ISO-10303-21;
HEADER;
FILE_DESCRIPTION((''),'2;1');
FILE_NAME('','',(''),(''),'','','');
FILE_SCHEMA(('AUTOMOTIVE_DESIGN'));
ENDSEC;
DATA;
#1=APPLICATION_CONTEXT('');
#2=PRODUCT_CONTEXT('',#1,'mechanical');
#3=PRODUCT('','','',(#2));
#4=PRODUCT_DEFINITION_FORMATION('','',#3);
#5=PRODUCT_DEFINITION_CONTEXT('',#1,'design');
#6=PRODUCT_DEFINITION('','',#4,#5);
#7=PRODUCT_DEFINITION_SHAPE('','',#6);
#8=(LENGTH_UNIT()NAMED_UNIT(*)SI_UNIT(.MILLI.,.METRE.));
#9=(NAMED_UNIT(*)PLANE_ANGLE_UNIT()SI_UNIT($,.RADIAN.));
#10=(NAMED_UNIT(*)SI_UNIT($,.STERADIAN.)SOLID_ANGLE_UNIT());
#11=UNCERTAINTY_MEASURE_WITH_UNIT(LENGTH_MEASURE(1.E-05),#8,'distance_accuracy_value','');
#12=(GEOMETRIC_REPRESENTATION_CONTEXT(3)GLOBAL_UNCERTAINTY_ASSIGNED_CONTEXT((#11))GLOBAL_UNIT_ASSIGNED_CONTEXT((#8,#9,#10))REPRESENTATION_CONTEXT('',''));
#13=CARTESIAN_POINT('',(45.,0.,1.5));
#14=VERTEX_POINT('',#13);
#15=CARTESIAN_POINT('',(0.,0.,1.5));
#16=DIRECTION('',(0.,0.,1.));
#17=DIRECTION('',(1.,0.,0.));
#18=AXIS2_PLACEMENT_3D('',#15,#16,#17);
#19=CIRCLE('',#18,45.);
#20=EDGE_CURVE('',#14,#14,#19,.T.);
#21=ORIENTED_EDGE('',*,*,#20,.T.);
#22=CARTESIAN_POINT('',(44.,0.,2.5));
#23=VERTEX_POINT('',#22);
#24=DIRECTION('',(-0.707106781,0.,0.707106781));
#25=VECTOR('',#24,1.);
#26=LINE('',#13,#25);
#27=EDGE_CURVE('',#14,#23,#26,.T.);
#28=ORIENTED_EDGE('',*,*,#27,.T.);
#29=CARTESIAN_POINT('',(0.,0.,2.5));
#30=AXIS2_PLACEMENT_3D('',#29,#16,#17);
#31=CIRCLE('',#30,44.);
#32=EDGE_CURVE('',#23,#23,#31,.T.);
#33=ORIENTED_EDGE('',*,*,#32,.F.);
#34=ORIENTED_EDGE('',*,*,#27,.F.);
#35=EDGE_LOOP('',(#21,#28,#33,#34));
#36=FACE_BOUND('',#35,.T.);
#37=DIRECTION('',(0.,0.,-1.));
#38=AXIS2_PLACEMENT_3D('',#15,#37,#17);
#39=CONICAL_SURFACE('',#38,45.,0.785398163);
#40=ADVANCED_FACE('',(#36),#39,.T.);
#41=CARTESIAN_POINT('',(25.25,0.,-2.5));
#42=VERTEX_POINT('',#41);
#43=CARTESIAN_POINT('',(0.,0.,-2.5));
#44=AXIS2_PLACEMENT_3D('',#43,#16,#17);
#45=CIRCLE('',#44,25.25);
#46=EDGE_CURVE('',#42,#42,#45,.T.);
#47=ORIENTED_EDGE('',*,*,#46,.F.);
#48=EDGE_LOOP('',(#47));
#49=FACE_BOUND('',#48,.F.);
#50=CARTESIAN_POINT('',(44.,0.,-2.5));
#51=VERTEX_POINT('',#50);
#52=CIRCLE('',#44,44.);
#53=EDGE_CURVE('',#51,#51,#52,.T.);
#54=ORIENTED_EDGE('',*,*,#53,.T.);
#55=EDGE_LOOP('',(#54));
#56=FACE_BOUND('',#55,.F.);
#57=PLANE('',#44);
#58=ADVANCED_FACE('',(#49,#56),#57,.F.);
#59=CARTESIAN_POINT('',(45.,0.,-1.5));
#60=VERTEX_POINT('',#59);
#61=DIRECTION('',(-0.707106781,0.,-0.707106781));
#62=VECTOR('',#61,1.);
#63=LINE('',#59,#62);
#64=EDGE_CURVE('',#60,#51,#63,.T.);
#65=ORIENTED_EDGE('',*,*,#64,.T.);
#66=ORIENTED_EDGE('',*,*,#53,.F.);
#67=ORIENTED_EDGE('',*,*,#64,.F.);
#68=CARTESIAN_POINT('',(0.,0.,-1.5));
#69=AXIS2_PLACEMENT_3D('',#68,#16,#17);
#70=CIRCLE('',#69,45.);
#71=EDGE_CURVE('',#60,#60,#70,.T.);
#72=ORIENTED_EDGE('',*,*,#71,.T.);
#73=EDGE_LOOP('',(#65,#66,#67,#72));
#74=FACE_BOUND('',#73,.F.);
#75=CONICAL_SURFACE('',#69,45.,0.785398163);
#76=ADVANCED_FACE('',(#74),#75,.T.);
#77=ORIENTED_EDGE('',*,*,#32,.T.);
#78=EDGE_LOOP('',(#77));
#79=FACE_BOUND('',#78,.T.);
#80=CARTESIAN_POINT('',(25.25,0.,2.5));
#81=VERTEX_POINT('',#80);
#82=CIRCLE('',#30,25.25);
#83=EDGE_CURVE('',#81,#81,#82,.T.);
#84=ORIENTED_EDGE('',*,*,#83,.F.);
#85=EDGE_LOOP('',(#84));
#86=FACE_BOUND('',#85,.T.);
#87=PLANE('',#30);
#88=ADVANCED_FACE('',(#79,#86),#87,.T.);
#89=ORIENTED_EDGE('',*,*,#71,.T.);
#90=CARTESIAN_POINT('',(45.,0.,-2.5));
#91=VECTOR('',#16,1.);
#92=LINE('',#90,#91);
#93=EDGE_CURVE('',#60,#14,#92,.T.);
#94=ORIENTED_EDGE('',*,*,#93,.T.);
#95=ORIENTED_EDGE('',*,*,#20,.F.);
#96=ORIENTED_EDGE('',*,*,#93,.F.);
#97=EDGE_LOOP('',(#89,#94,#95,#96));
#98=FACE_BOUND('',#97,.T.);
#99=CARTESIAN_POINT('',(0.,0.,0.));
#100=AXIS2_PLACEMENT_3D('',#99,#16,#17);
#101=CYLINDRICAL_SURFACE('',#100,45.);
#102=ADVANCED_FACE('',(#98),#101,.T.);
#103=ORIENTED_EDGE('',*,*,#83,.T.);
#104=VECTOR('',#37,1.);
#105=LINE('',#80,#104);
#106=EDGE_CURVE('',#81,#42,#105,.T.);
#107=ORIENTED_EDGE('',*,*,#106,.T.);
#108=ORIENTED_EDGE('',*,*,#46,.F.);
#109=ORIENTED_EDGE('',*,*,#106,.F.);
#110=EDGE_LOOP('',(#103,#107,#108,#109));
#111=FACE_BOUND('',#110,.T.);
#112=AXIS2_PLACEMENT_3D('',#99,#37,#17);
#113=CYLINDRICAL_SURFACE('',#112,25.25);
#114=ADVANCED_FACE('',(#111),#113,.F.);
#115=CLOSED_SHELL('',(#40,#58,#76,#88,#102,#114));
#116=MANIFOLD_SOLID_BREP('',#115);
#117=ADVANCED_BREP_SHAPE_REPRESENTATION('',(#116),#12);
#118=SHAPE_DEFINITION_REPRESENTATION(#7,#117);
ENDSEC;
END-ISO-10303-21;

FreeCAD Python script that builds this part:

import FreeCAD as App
import Part
import Sketcher
from FreeCAD import Vector
Q = App.Units.Quantity


def edges_at(feature, points):
    """Names of the edges that pass closest to the given points."""
    edges = feature.Shape.Edges
    near = lambda p: min(range(len(edges)), key=lambda i: edges[i].distToShape(Part.Vertex(*p))[0])
    return sorted({f"Edge{near(p) + 1}" for p in points})

doc = App.newDocument("Part")
body = doc.addObject("PartDesign::Body", "Body")

sketch1 = body.newObject("Sketcher::SketchObject", "Sketch")
sketch1.AttachmentSupport = (doc.getObject("XY_Plane"), [""])
sketch1.MapMode = "FlatFace"
sketch1.addGeometry(Part.Circle(Vector(0, 0, 0), Vector(0, 0, 1), 45), False)
sketch1.addGeometry(Part.Circle(Vector(0, 0, 0), Vector(0, 0, 1), 25), False)
sketch1.addConstraint(Sketcher.Constraint("Coincident", 0, 3, -1, 1))
sketch1.addConstraint(Sketcher.Constraint("Coincident", 1, 3, -1, 1))
sketch1.addConstraint(Sketcher.Constraint("Diameter", 0, Q("90 mm")))
sketch1.addConstraint(Sketcher.Constraint("Diameter", 1, Q("50.5 mm")))
pad1 = body.newObject("PartDesign::Pad", "Pad")
pad1.Profile = sketch1
pad1.Length = 5
pad1.Midplane = True
doc.recompute()

chamfer = body.newObject("PartDesign::Chamfer", "Chamfer")
chamfer.Base = (pad1, edges_at(pad1, [(-45, 0, -2.5), (45, 0, 0), (-45, 0, 2.5)]))
chamfer.Size = 1

doc.recompute()
